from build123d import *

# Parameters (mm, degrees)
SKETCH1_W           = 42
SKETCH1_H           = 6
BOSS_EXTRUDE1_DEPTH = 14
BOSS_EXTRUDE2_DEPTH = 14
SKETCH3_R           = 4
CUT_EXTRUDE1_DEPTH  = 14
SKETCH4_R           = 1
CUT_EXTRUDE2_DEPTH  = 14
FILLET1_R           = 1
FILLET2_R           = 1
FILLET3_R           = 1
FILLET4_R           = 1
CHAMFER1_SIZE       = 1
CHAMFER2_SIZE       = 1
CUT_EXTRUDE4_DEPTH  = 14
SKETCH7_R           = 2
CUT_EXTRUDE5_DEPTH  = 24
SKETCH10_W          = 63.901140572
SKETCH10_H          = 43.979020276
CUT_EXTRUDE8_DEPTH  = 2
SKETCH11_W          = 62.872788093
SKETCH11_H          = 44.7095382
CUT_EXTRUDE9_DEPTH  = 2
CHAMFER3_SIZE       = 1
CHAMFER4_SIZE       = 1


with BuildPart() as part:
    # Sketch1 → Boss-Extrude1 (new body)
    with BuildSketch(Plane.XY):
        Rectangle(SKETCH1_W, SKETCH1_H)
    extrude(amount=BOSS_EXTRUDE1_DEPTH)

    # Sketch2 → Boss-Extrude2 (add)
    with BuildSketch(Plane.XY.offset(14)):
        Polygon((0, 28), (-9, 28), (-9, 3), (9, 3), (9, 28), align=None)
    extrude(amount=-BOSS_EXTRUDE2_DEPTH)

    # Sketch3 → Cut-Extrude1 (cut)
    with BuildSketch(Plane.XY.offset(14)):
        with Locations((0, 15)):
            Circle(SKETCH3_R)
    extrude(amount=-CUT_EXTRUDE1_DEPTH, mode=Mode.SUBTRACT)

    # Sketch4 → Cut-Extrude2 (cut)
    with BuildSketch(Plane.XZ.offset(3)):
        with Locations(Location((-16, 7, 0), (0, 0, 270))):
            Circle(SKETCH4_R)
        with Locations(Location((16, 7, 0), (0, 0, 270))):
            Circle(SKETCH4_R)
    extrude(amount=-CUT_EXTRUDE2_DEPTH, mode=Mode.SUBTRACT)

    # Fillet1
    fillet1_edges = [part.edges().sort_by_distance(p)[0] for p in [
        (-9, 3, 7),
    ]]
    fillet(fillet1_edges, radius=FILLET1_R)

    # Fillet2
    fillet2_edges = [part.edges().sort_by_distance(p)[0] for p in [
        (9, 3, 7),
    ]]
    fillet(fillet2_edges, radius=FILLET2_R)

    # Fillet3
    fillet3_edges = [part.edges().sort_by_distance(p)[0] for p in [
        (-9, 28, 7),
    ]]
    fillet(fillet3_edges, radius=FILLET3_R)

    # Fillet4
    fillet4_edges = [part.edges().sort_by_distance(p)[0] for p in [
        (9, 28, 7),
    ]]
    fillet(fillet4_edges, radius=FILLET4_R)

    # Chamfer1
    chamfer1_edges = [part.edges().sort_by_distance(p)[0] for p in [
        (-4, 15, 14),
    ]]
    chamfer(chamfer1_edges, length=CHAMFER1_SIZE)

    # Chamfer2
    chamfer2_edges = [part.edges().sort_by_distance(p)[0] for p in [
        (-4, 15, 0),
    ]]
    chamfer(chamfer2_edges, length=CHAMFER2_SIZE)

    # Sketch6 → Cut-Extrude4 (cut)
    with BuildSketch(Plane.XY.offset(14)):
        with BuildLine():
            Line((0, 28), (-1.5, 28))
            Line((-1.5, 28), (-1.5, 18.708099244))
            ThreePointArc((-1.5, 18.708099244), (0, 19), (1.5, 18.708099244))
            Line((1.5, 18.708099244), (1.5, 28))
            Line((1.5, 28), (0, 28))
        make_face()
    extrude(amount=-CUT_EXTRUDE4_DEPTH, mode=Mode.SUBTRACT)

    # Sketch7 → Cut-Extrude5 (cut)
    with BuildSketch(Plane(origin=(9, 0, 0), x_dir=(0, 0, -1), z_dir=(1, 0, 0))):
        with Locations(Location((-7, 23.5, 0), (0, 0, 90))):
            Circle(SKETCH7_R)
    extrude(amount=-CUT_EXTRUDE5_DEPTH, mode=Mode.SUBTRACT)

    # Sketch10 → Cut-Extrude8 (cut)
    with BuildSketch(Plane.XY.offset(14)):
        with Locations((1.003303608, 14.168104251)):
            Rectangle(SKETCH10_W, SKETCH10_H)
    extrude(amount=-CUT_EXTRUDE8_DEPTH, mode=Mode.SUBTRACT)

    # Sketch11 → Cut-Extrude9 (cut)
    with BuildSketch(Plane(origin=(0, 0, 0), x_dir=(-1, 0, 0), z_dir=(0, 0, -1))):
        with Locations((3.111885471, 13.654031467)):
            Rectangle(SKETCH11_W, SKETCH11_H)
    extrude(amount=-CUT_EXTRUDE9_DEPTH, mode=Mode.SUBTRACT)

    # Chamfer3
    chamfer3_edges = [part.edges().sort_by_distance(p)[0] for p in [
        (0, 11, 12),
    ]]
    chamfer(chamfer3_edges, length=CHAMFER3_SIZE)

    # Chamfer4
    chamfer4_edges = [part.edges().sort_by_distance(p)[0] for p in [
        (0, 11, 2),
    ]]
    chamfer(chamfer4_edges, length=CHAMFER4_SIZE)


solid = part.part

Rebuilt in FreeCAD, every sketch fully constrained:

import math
import FreeCAD as App
import Part
import Sketcher


def edges_at(feature, points):
    """Names of the edges that pass closest to the given points."""
    edges = feature.Shape.Edges
    near = lambda p: min(range(len(edges)), key=lambda i: edges[i].distToShape(Part.Vertex(*p))[0])
    return sorted({f"Edge{near(p) + 1}" for p in points})


def add_polygon(sketch, points):
    """Adds a closed chain of lines whose ends are joined by coincident constraints."""
    first, n = sketch.GeometryCount, len(points)
    for a, b in zip(points, points[1:] + points[:1]):
        sketch.addGeometry(Part.LineSegment(App.Vector(*a, 0), App.Vector(*b, 0)), False)
    for i in range(n):
        sketch.addConstraint(Sketcher.Constraint("Coincident", first + i, 2, first + (i + 1) % n, 1))

doc = App.newDocument("Part")
body = doc.addObject("PartDesign::Body", "Body")

# Sketch on XY plane
sketch1 = doc.addObject("Sketcher::SketchObject", "Sketch")
body.addObject(sketch1)
sketch1.AttachmentSupport = (doc.XY_Plane, [""])
sketch1.MapMode = "FlatFace"
add_polygon(sketch1, [(-21, 3), (-21, -3), (21, -3), (21, 3)])  # lines 0-3
sketch1.addConstraint([
    Sketcher.Constraint("Vertical", 0),
    Sketcher.Constraint("Horizontal", 1),
    Sketcher.Constraint("Vertical", 2),
    Sketcher.Constraint("Horizontal", 3),
    Sketcher.Constraint("Symmetric", 0, 2, 2, 2, -1, 1),
    Sketcher.Constraint("DistanceX", 1, 1, 1, 2, 42.0),
    Sketcher.Constraint("DistanceY", 0, 2, 0, 1, 6.0),
])
pad1 = doc.addObject("PartDesign::Pad", "Pad")
body.addObject(pad1)
pad1.Profile = sketch1
pad1.Length = 14

# Sketch on XY plane
sketch2 = doc.addObject("Sketcher::SketchObject", "Sketch001")
body.addObject(sketch2)
sketch2.AttachmentSupport = (doc.XY_Plane, [""])
sketch2.MapMode = "FlatFace"
sketch2.AttachmentOffset = App.Placement(App.Vector(0, 0, 14), App.Rotation())
add_polygon(sketch2, [(-9, 28), (-9, 3), (9, 3), (9, 28)])  # lines 0-3
sketch2.addConstraint([
    Sketcher.Constraint("Vertical", 0),
    Sketcher.Constraint("Horizontal", 1),
    Sketcher.Constraint("Vertical", 2),
    Sketcher.Constraint("Horizontal", 3),
    Sketcher.Constraint("DistanceX", 1, 1, 1, 2, 18.0),
    Sketcher.Constraint("DistanceY", 0, 2, 0, 1, 25.0),
    Sketcher.Constraint("DistanceX", 0, 2, -1, 1, 9.0),
    Sketcher.Constraint("DistanceY", -1, 1, 0, 2, 3.0),
])
pad2 = doc.addObject("PartDesign::Pad", "Pad001")
body.addObject(pad2)
pad2.Profile = sketch2
pad2.Length = 14
pad2.Reversed = True

# Sketch on XY plane
sketch3 = doc.addObject("Sketcher::SketchObject", "Sketch002")
body.addObject(sketch3)
sketch3.AttachmentSupport = (doc.XY_Plane, [""])
sketch3.MapMode = "FlatFace"
sketch3.AttachmentOffset = App.Placement(App.Vector(0, 0, 14), App.Rotation())
sketch3.addGeometry(Part.Circle(App.Vector(0, 15, 0), App.Vector(0, 0, 1), 4), False)
sketch3.addConstraint([
    Sketcher.Constraint("PointOnObject", 0, 3, -2),
    Sketcher.Constraint("Diameter", 0, 8.0),
    Sketcher.Constraint("DistanceY", -1, 1, 0, 3, 15.0),
])
pocket1 = doc.addObject("PartDesign::Pocket", "Pocket")
body.addObject(pocket1)
pocket1.Profile = sketch3
pocket1.Length = 14

# Sketch on XZ plane
sketch4 = doc.addObject("Sketcher::SketchObject", "Sketch003")
body.addObject(sketch4)
sketch4.AttachmentSupport = (doc.XZ_Plane, [""])
sketch4.MapMode = "FlatFace"
sketch4.AttachmentOffset = App.Placement(App.Vector(0, 0, 3), App.Rotation())
sketch4.addGeometry([
    Part.Circle(App.Vector(-16, 7, 0), App.Vector(0, 0, 1), 1),
    Part.Circle(App.Vector(16, 7, 0), App.Vector(0, 0, 1), 1),
], False)
sketch4.addConstraint([
    Sketcher.Constraint("Equal", 0, 1),
    Sketcher.Constraint("Symmetric", 0, 3, 1, 3, -2),
    Sketcher.Constraint("Diameter", 0, 2.0),
    Sketcher.Constraint("DistanceX", 0, 3, -1, 1, 16.0),
    Sketcher.Constraint("DistanceY", -1, 1, 0, 3, 7.0),
])
pocket2 = doc.addObject("PartDesign::Pocket", "Pocket001")
body.addObject(pocket2)
pocket2.Profile = sketch4
pocket2.Length = 14
doc.recompute()

fillet = doc.addObject("PartDesign::Fillet", "Fillet")
body.addObject(fillet)
fillet.Base = (pocket2, edges_at(pocket2, [(-9, 3, 7)]))
fillet.Radius = 1
doc.recompute()

fillet2 = doc.addObject("PartDesign::Fillet", "Fillet001")
body.addObject(fillet2)
fillet2.Base = (fillet, edges_at(fillet, [(9, 3, 7)]))
fillet2.Radius = 1
doc.recompute()

fillet3 = doc.addObject("PartDesign::Fillet", "Fillet002")
body.addObject(fillet3)
fillet3.Base = (fillet2, edges_at(fillet2, [(-9, 28, 7)]))
fillet3.Radius = 1
doc.recompute()

fillet4 = doc.addObject("PartDesign::Fillet", "Fillet003")
body.addObject(fillet4)
fillet4.Base = (fillet3, edges_at(fillet3, [(9, 28, 7)]))
fillet4.Radius = 1
doc.recompute()

chamfer = doc.addObject("PartDesign::Chamfer", "Chamfer")
body.addObject(chamfer)
chamfer.Base = (fillet4, edges_at(fillet4, [(-4, 15, 14)]))
chamfer.Size = 1
doc.recompute()

chamfer2 = doc.addObject("PartDesign::Chamfer", "Chamfer001")
body.addObject(chamfer2)
chamfer2.Base = (chamfer, edges_at(chamfer, [(-4, 15, 0)]))
chamfer2.Size = 1

# Sketch on XY plane
sketch5 = doc.addObject("Sketcher::SketchObject", "Sketch004")
body.addObject(sketch5)
sketch5.AttachmentSupport = (doc.XY_Plane, [""])
sketch5.MapMode = "FlatFace"
sketch5.AttachmentOffset = App.Placement(App.Vector(0, 0, 14), App.Rotation())
sketch5.addGeometry([
    Part.LineSegment(App.Vector(-1.5, 28, 0), App.Vector(-1.5, 18.7, 0)),
    Part.ArcOfCircle(Part.Circle(App.Vector(0, 15, 0), App.Vector(0, 0, 1), 4), math.radians(68), math.radians(112)),
    Part.LineSegment(App.Vector(1.5, 18.7, 0), App.Vector(1.5, 28, 0)),
    Part.LineSegment(App.Vector(1.5, 28, 0), App.Vector(-1.5, 28, 0)),
], False)
sketch5.addConstraint([
    Sketcher.Constraint("Coincident", 0, 2, 1, 2),
    Sketcher.Constraint("Coincident", 1, 1, 2, 1),
    Sketcher.Constraint("Coincident", 2, 2, 3, 1),
    Sketcher.Constraint("Coincident", 3, 2, 0, 1),
    Sketcher.Constraint("Vertical", 0),
    Sketcher.Constraint("Vertical", 2),
    Sketcher.Constraint("Horizontal", 3),
    Sketcher.Constraint("Symmetric", 0, 2, 1, 1, -2),
    Sketcher.Constraint("Radius", 1, 4.0),
    Sketcher.Constraint("DistanceX", 3, 2, 3, 1, 3.0),
    Sketcher.Constraint("DistanceY", -1, 1, 1, 3, 15.0),
    Sketcher.Constraint("DistanceY", -1, 1, 2, 2, 28.0),
])
pocket3 = doc.addObject("PartDesign::Pocket", "Pocket002")
body.addObject(pocket3)
pocket3.Profile = sketch5
pocket3.Length = 14

# Sketch on YZ plane
sketch6 = doc.addObject("Sketcher::SketchObject", "Sketch005")
body.addObject(sketch6)
sketch6.AttachmentSupport = (doc.YZ_Plane, [""])
sketch6.MapMode = "FlatFace"
sketch6.AttachmentOffset = App.Placement(App.Vector(0, 0, 9), App.Rotation())
sketch6.addGeometry(Part.Circle(App.Vector(23.5, 7, 0), App.Vector(0, 0, 1), 2), False)
sketch6.addConstraint([
    Sketcher.Constraint("Diameter", 0, 4.0),
    Sketcher.Constraint("DistanceY", -1, 1, 0, 3, 7.0),
    Sketcher.Constraint("DistanceX", -1, 1, 0, 3, 23.5),
])
pocket4 = doc.addObject("PartDesign::Pocket", "Pocket003")
body.addObject(pocket4)
pocket4.Profile = sketch6
pocket4.Length = 24

# Sketch on XY plane
sketch7 = doc.addObject("Sketcher::SketchObject", "Sketch006")
body.addObject(sketch7)
sketch7.AttachmentSupport = (doc.XY_Plane, [""])
sketch7.MapMode = "FlatFace"
sketch7.AttachmentOffset = App.Placement(App.Vector(0, 0, 14), App.Rotation())
add_polygon(sketch7, [(-31, 36), (-31, -8), (33, -8), (33, 36)])  # lines 0-3
sketch7.addConstraint([
    Sketcher.Constraint("Vertical", 0),
    Sketcher.Constraint("Horizontal", 1),
    Sketcher.Constraint("Vertical", 2),
    Sketcher.Constraint("Horizontal", 3),
    Sketcher.Constraint("DistanceX", 1, 1, 1, 2, 63.901141),
    Sketcher.Constraint("DistanceY", 0, 2, 0, 1, 43.97902),
    Sketcher.Constraint("DistanceX", 0, 2, -1, 1, 30.947267),
    Sketcher.Constraint("DistanceY", 0, 2, -1, 1, 7.821406),
])
pocket5 = doc.addObject("PartDesign::Pocket", "Pocket004")
body.addObject(pocket5)
pocket5.Profile = sketch7
pocket5.Length = 2

# Sketch on XY plane
sketch8 = doc.addObject("Sketcher::SketchObject", "Sketch007")
body.addObject(sketch8)
sketch8.AttachmentSupport = (doc.XY_Plane, [""])
sketch8.MapMode = "FlatFace"
add_polygon(sketch8, [(28, 36), (28, -9), (-35, -9), (-35, 36)])  # lines 0-3
sketch8.addConstraint([
    Sketcher.Constraint("Vertical", 0),
    Sketcher.Constraint("Horizontal", 1),
    Sketcher.Constraint("Vertical", 2),
    Sketcher.Constraint("Horizontal", 3),
    Sketcher.Constraint("DistanceX", 1, 2, 1, 1, 62.872788),
    Sketcher.Constraint("DistanceY", 0, 2, 0, 1, 44.709538),
    Sketcher.Constraint("DistanceY", -1, 1, 2, 2, 36.008801),
    Sketcher.Constraint("DistanceX", -1, 1, 0, 2, 28.324509),
])
pocket6 = doc.addObject("PartDesign::Pocket", "Pocket005")
body.addObject(pocket6)
pocket6.Profile = sketch8
pocket6.Length = 2
pocket6.Reversed = True
doc.recompute()

chamfer3 = doc.addObject("PartDesign::Chamfer", "Chamfer002")
body.addObject(chamfer3)
chamfer3.Base = (pocket6, edges_at(pocket6, [(0, 11, 12)]))
chamfer3.Size = 1
doc.recompute()

chamfer4 = doc.addObject("PartDesign::Chamfer", "Chamfer003")
body.addObject(chamfer4)
chamfer4.Base = (chamfer3, edges_at(chamfer3, [(0, 11, 2)]))
chamfer4.Size = 1

doc.recompute()
